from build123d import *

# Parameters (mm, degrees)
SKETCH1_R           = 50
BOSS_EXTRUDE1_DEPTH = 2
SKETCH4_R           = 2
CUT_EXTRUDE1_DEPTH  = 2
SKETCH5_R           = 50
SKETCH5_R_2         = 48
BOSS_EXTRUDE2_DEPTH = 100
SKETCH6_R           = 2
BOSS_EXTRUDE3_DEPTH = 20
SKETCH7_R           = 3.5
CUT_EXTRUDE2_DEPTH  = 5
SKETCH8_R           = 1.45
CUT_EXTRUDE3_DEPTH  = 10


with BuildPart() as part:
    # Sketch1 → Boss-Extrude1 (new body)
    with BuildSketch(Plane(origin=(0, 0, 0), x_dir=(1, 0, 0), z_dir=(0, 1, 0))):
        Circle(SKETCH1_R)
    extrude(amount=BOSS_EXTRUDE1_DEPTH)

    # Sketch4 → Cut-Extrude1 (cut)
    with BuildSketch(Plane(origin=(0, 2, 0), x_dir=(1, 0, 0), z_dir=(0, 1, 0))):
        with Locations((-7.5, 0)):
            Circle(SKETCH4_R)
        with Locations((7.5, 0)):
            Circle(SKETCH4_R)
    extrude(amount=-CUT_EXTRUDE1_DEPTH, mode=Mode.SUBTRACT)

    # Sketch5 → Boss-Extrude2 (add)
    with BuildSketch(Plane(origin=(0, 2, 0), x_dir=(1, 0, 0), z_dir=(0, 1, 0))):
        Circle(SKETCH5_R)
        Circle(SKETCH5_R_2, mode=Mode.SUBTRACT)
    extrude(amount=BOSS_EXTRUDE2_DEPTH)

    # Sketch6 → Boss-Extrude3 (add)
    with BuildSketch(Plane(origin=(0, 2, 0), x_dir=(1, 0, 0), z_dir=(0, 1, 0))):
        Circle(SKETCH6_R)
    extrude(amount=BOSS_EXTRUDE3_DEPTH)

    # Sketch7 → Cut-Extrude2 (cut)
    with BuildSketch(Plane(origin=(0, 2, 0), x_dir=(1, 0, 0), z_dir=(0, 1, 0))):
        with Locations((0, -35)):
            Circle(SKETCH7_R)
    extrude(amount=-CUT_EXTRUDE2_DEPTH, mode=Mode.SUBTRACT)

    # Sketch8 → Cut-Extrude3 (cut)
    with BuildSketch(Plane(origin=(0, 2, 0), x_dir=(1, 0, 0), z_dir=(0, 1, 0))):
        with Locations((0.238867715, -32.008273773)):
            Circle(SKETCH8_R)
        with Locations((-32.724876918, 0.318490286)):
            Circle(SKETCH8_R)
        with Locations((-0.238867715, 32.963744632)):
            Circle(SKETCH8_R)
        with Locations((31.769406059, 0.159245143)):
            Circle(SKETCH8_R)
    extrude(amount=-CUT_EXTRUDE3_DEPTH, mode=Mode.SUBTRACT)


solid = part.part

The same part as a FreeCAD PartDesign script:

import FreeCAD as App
import Part
import Sketcher
from FreeCAD import Vector
Q = App.Units.Quantity

doc = App.newDocument("Part")
body = doc.addObject("PartDesign::Body", "Body")

# Sketch on XZ plane
sketch1 = doc.addObject("Sketcher::SketchObject", "Sketch")
body.addObject(sketch1)
sketch1.AttachmentSupport = (doc.XZ_Plane, [""])
sketch1.MapMode = "FlatFace"
sketch1.addGeometry(Part.Circle(Vector(0, 0, 0), Vector(0, 0, 1), 50), False)
sketch1.addConstraint(Sketcher.Constraint("Coincident", 0, 3, -1, 1))
sketch1.addConstraint(Sketcher.Constraint("Diameter", 0, Q("100 mm")))
pad1 = doc.addObject("PartDesign::Pad", "Pad")
body.addObject(pad1)
pad1.Profile = sketch1
pad1.Length = 2
pad1.Reversed = True

# Sketch on XZ plane
sketch2 = doc.addObject("Sketcher::SketchObject", "Sketch001")
body.addObject(sketch2)
sketch2.AttachmentSupport = (doc.XZ_Plane, [""])
sketch2.MapMode = "FlatFace"
sketch2.AttachmentOffset = App.Placement(Vector(0, 0, -2), App.Rotation())
sketch2.addGeometry(Part.Circle(Vector(-7.5, 0, 0), Vector(0, 0, 1), 2), False)
sketch2.addGeometry(Part.Circle(Vector(7.5, 0, 0), Vector(0, 0, 1), 2), False)
sketch2.addConstraint(Sketcher.Constraint("Equal", 0, 1))
sketch2.addConstraint(Sketcher.Constraint("Symmetric", 0, 3, 1, 3, -1, 1))
sketch2.addConstraint(Sketcher.Constraint("PointOnObject", 0, 3, -1))
sketch2.addConstraint(Sketcher.Constraint("Diameter", 0, Q("4 mm")))
sketch2.addConstraint(Sketcher.Constraint("DistanceX", 0, 3, 1, 3, Q("15 mm")))
pocket1 = doc.addObject("PartDesign::Pocket", "Pocket")
body.addObject(pocket1)
pocket1.Profile = sketch2
pocket1.Length = 2
pocket1.Reversed = True

# Sketch on XZ plane
sketch3 = doc.addObject("Sketcher::SketchObject", "Sketch002")
body.addObject(sketch3)
sketch3.AttachmentSupport = (doc.XZ_Plane, [""])
sketch3.MapMode = "FlatFace"
sketch3.AttachmentOffset = App.Placement(Vector(0, 0, -2), App.Rotation())
sketch3.addGeometry(Part.Circle(Vector(0, 0, 0), Vector(0, 0, 1), 50), False)
sketch3.addGeometry(Part.Circle(Vector(0, 0, 0), Vector(0, 0, 1), 48), False)
sketch3.addConstraint(Sketcher.Constraint("Coincident", 0, 3, -1, 1))
sketch3.addConstraint(Sketcher.Constraint("Coincident", 1, 3, -1, 1))
sketch3.addConstraint(Sketcher.Constraint("Diameter", 0, Q("100 mm")))
sketch3.addConstraint(Sketcher.Constraint("Diameter", 1, Q("96 mm")))
pad2 = doc.addObject("PartDesign::Pad", "Pad001")
body.addObject(pad2)
pad2.Profile = sketch3
pad2.Length = 100
pad2.Reversed = True

# Sketch on XZ plane
sketch4 = doc.addObject("Sketcher::SketchObject", "Sketch003")
body.addObject(sketch4)
sketch4.AttachmentSupport = (doc.XZ_Plane, [""])
sketch4.MapMode = "FlatFace"
sketch4.AttachmentOffset = App.Placement(Vector(0, 0, -2), App.Rotation())
sketch4.addGeometry(Part.Circle(Vector(0, 0, 0), Vector(0, 0, 1), 2), False)
sketch4.addConstraint(Sketcher.Constraint("Coincident", 0, 3, -1, 1))
sketch4.addConstraint(Sketcher.Constraint("Diameter", 0, Q("4 mm")))
pad3 = doc.addObject("PartDesign::Pad", "Pad002")
body.addObject(pad3)
pad3.Profile = sketch4
pad3.Length = 20
pad3.Reversed = True

# Sketch on XZ plane
sketch5 = doc.addObject("Sketcher::SketchObject", "Sketch004")
body.addObject(sketch5)
sketch5.AttachmentSupport = (doc.XZ_Plane, [""])
sketch5.MapMode = "FlatFace"
sketch5.AttachmentOffset = App.Placement(Vector(0, 0, -2), App.Rotation())
sketch5.addGeometry(Part.Circle(Vector(0, 35, 0), Vector(0, 0, 1), 3.5), False)
sketch5.addConstraint(Sketcher.Constraint("PointOnObject", 0, 3, -2))
sketch5.addConstraint(Sketcher.Constraint("Diameter", 0, Q("7 mm")))
sketch5.addConstraint(Sketcher.Constraint("DistanceY", -1, 1, 0, 3, Q("35 mm")))
pocket2 = doc.addObject("PartDesign::Pocket", "Pocket001")
body.addObject(pocket2)
pocket2.Profile = sketch5
pocket2.Length = 5
pocket2.Reversed = True

# Sketch on XZ plane
sketch6 = doc.addObject("Sketcher::SketchObject", "Sketch005")
body.addObject(sketch6)
sketch6.AttachmentSupport = (doc.XZ_Plane, [""])
sketch6.MapMode = "FlatFace"
sketch6.AttachmentOffset = App.Placement(Vector(0, 0, -2), App.Rotation())
sketch6.addGeometry(Part.Circle(Vector(0.2, 32, 0), Vector(0, 0, 1), 1.4), False)
sketch6.addGeometry(Part.Circle(Vector(-32.7, -0.3, 0), Vector(0, 0, 1), 1.4), False)
sketch6.addGeometry(Part.Circle(Vector(-0.2, -33, 0), Vector(0, 0, 1), 1.4), False)
sketch6.addGeometry(Part.Circle(Vector(31.8, -0.2, 0), Vector(0, 0, 1), 1.4), False)
sketch6.addConstraint(Sketcher.Constraint("Equal", 0, 1))
sketch6.addConstraint(Sketcher.Constraint("Equal", 1, 2))
sketch6.addConstraint(Sketcher.Constraint("Equal", 2, 3))
sketch6.addConstraint(Sketcher.Constraint("Diameter", 0, Q("2.9 mm")))
sketch6.addConstraint(Sketcher.Constraint("DistanceY", 2, 3, 3, 3, Q("32.804499 mm")))
sketch6.addConstraint(Sketcher.Constraint("DistanceY", 1, 3, -1, 1, Q("0.31849 mm")))
sketch6.addConstraint(Sketcher.Constraint("DistanceX", 1, 3, 2, 3, Q("32.486009 mm")))
sketch6.addConstraint(Sketcher.Constraint("DistanceY", 2, 3, 0, 3, Q("64.972018 mm")))
sketch6.addConstraint(Sketcher.Constraint("DistanceX", 0, 3, 3, 3, Q("31.530538 mm")))
sketch6.addConstraint(Sketcher.Constraint("DistanceX", -1, 1, 0, 3, Q("0.238868 mm")))
sketch6.addConstraint(Sketcher.Constraint("DistanceY", -1, 1, 0, 3, Q("32.008274 mm")))
sketch6.addConstraint(Sketcher.Constraint("DistanceX", 1, 3, -1, 1, Q("32.724877 mm")))
pocket3 = doc.addObject("PartDesign::Pocket", "Pocket002")
body.addObject(pocket3)
pocket3.Profile = sketch6
pocket3.Length = 10
pocket3.Reversed = True

doc.recompute()
